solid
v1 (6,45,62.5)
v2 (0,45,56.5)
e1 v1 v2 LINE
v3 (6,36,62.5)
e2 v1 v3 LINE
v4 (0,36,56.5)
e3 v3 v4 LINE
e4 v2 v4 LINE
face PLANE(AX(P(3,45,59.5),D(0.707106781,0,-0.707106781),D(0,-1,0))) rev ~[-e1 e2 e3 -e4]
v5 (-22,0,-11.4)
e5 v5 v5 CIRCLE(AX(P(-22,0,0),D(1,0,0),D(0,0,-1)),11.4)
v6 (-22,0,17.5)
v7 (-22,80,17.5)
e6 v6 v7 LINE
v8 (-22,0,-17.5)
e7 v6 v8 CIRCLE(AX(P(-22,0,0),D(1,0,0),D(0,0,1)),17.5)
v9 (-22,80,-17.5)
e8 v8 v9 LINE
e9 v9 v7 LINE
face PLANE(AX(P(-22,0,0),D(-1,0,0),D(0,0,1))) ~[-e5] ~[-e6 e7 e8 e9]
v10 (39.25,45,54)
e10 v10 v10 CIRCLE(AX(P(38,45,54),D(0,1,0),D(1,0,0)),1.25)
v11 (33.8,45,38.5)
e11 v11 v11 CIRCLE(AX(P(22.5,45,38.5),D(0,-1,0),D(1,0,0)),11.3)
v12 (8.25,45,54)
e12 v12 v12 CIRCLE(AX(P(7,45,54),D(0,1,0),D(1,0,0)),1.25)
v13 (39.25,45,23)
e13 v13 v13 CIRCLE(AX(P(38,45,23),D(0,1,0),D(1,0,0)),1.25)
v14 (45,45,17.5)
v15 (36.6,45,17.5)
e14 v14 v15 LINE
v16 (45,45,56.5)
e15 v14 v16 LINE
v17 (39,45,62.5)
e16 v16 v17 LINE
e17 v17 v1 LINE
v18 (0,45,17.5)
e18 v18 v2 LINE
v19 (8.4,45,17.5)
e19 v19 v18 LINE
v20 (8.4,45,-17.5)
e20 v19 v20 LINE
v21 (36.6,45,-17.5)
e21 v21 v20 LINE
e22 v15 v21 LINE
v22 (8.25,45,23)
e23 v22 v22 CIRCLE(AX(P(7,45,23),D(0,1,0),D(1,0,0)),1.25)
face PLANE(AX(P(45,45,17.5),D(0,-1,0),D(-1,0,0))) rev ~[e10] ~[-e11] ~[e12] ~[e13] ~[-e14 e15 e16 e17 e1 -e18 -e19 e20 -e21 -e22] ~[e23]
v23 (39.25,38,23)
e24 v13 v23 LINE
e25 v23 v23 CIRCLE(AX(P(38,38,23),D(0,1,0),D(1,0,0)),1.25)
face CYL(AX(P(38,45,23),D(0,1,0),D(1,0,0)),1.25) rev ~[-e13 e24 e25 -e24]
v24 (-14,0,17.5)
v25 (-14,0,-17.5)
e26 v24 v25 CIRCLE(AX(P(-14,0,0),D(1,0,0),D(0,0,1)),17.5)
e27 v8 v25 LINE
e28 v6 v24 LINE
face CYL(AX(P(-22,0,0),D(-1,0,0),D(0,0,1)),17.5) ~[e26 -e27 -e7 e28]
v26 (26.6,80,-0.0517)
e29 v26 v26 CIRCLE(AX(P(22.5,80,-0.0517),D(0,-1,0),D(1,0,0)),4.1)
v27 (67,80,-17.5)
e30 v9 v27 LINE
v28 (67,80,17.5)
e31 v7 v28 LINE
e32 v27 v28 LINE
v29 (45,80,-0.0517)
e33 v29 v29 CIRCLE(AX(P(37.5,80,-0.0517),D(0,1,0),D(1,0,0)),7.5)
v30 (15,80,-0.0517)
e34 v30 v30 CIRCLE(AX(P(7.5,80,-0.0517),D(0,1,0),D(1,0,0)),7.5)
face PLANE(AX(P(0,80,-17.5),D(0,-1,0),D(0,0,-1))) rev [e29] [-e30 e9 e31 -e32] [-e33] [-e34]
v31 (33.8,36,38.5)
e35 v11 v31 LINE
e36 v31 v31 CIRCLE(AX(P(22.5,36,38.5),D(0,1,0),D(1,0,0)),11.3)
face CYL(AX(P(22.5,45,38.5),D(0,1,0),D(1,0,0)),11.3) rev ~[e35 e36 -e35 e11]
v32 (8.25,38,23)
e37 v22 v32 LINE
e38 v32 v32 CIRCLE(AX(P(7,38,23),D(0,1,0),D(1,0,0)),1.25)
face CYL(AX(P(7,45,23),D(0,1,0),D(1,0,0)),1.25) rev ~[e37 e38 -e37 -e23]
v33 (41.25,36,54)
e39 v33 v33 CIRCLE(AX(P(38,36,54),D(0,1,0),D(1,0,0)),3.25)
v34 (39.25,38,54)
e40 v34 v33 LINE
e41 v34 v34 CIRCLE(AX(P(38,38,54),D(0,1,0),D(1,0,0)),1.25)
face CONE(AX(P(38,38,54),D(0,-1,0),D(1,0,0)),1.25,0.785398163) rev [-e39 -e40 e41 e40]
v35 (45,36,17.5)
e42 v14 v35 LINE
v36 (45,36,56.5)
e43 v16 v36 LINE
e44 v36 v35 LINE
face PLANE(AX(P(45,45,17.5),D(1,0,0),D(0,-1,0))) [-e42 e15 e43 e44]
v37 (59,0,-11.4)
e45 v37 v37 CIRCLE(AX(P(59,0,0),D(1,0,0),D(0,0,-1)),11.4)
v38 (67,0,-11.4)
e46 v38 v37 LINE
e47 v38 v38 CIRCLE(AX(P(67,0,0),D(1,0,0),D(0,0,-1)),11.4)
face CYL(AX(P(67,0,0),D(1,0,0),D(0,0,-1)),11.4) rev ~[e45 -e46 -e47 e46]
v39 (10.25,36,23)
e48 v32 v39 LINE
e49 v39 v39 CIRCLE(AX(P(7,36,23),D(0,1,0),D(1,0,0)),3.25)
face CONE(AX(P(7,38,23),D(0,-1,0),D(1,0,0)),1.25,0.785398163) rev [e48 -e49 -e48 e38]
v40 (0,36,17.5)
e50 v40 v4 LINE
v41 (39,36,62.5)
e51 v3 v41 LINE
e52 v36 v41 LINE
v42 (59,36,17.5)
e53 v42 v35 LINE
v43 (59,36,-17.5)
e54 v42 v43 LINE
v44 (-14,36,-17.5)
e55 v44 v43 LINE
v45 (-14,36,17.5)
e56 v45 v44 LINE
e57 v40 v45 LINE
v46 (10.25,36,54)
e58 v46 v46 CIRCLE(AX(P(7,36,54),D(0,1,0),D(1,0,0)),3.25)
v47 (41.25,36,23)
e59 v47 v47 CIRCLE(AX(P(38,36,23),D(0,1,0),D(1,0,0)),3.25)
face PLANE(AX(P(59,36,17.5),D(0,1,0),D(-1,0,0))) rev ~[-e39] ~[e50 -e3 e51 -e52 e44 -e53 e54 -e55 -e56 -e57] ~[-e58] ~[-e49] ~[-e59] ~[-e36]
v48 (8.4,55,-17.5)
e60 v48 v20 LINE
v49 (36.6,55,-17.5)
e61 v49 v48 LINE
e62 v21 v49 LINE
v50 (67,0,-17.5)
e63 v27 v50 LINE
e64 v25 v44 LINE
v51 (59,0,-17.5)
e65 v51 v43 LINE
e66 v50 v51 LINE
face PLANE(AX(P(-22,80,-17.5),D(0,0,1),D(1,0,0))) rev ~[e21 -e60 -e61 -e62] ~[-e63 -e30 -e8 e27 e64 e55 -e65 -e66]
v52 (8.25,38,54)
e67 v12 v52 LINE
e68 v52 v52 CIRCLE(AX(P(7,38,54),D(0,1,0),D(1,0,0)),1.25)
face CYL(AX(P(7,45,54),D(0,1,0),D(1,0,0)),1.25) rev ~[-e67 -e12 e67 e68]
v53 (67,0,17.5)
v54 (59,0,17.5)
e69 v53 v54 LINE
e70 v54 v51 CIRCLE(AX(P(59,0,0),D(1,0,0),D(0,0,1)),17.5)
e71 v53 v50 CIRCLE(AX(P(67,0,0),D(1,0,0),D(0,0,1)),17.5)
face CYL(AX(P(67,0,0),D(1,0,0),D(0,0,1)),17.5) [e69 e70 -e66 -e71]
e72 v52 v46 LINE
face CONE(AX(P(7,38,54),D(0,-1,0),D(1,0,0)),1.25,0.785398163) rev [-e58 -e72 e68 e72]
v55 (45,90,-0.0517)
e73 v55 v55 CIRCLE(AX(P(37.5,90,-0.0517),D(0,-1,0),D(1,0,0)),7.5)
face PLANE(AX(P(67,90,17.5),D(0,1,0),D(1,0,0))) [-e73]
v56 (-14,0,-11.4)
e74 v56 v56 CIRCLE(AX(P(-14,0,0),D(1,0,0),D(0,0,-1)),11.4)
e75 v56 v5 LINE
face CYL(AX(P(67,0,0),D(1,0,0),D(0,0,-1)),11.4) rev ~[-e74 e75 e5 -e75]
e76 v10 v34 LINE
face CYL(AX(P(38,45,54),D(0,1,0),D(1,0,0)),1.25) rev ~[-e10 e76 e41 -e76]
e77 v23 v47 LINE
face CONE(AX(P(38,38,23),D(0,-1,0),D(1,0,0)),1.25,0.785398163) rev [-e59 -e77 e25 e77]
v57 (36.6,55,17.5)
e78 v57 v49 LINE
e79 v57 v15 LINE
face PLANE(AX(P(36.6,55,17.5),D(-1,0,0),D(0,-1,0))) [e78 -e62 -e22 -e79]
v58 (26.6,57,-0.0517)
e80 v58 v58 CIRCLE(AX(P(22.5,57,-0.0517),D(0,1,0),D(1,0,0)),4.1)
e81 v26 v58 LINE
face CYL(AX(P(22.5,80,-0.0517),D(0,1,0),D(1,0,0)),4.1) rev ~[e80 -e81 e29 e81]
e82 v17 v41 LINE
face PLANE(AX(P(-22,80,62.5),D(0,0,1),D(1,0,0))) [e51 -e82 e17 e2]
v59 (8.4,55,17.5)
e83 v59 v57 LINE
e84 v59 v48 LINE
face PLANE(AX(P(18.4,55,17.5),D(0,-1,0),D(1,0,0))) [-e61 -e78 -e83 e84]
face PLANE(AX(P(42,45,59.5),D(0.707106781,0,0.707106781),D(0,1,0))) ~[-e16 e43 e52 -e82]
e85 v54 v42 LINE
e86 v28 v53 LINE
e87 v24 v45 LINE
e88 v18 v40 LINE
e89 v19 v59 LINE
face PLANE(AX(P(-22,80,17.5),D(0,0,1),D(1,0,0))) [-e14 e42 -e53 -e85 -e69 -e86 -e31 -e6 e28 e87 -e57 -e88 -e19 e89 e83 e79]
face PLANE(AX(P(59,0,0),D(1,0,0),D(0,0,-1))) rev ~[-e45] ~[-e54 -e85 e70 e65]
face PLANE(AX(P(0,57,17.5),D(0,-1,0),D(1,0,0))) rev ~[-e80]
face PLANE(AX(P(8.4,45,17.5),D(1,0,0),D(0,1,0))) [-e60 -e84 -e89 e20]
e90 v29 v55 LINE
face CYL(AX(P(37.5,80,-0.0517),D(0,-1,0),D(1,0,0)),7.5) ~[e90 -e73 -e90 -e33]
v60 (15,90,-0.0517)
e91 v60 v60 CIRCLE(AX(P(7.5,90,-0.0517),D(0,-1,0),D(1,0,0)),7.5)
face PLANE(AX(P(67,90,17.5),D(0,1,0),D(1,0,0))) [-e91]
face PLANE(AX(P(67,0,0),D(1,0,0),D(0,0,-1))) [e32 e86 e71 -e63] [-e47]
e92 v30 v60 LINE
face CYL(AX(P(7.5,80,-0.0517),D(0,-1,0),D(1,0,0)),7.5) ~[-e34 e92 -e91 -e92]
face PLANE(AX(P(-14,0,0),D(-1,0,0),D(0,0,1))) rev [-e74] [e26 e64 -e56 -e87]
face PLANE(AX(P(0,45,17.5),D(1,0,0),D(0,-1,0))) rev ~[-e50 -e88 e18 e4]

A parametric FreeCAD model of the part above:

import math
import FreeCAD as App
import Part
import Sketcher
from FreeCAD import Vector


def edges_at(feature, points):
    """Names of the edges that pass closest to the given points."""
    edges = feature.Shape.Edges
    near = lambda p: min(range(len(edges)), key=lambda i: edges[i].distToShape(Part.Vertex(*p))[0])
    return sorted({f"Edge{near(p) + 1}" for p in points})

doc = App.newDocument("Part")
params = doc.addObject("Spreadsheet::Sheet", "Params")
for row, (alias, value) in enumerate([
    ("sketch1_radius", "17.5 mm"),
    ("sketch1_width", "80 mm"),
    ("sketch1_radius2", "8.5 mm"),
    ("pad1_length", "45 mm"),
    ("sketch2_width", "23 mm"),
    ("sketch2_height", "35 mm"),
    ("pad2_length", "22 mm"),
    ("sketch3_radius", "17.5 mm"),
    ("sketch3_radius2", "8.5 mm"),
    ("sketch3_width", "57 mm"),
    ("pad3_length", "8 mm"),
    ("sketch4_diameter", "15 mm"),
    ("pad4_length", "10 mm"),
    ("sketch5_diameter", "8.2 mm"),
    ("pocket1_length", "35 mm"),
    ("sketch6_height", "10 mm"),
    ("sketch6_width", "28.2 mm"),
    ("pocket2_length", "84.5 mm"),
    ("sketch7_width", "45 mm"),
    ("sketch7_height", "53.5 mm"),
    ("pocket3_length", "85.25 mm"),
    ("sketch8_diameter", "22.8 mm"),
    ("pocket4_length", "144.5 mm"),
    ("sketch9_height", "9 mm"),
    ("sketch9_width", "45 mm"),
    ("pad5_length", "45 mm"),
    ("sketch10_diameter", "22.6 mm"),
    ("sketch10_diameter2", "2.5 mm"),
    ("pocket5_length", "45 mm"),
    ("chamfer_size", "2 mm"),
    ("chamfer2_size", "6 mm"),
    ("sketch11_width", "73 mm"),
    ("sketch11_height", "21 mm"),
    ("sketch11_height2", "10 mm"),
    ("sketch11_width2", "28.2 mm"),
    ("pad6_length", "35 mm"),
], start=1):
    params.set(f"A{row}", alias)
    params.set(f"B{row}", "=" + value)
    params.setAlias(f"B{row}", alias)

body = doc.addObject("PartDesign::Body", "Body")

sketch1 = doc.addObject("Sketcher::SketchObject", "Sketch")
body.addObject(sketch1)
sketch1.AttachmentSupport = (doc.YZ_Plane, [""])
sketch1.MapMode = "FlatFace"
sketch1.addGeometry(Part.ArcOfCircle(Part.Circle(Vector(0, 0, 0), Vector(0, 0, 1), 18), math.radians(90), math.radians(270)), False)
sketch1.addGeometry(Part.LineSegment(Vector(0, -18, 0), Vector(80, -18, 0)), False)
sketch1.addGeometry(Part.LineSegment(Vector(80, -18, 0), Vector(80, 18, 0)), False)
sketch1.addGeometry(Part.LineSegment(Vector(80, 18, 0), Vector(0, 18, 0)), False)
sketch1.addGeometry(Part.LineSegment(Vector(-6, -6, 0), Vector(-6, 6, 0)), False)
sketch1.addGeometry(Part.ArcOfCircle(Part.Circle(Vector(0, 0, 0), Vector(0, 0, 1), 9), math.radians(45), math.radians(135)), False)
sketch1.addGeometry(Part.LineSegment(Vector(6, 6, 0), Vector(6, -6, 0)), False)
sketch1.addGeometry(Part.ArcOfCircle(Part.Circle(Vector(0, 0, 0), Vector(0, 0, 1), 9), math.radians(-135), math.radians(-45)), False)
sketch1.addConstraint(Sketcher.Constraint("Tangent", 0, 2, 1, 1))
sketch1.addConstraint(Sketcher.Constraint("Coincident", 1, 2, 2, 1))
sketch1.addConstraint(Sketcher.Constraint("Coincident", 2, 2, 3, 1))
sketch1.addConstraint(Sketcher.Constraint("Tangent", 3, 2, 0, 1))
sketch1.addConstraint(Sketcher.Constraint("Coincident", 4, 2, 5, 2))
sketch1.addConstraint(Sketcher.Constraint("Coincident", 5, 1, 6, 1))
sketch1.addConstraint(Sketcher.Constraint("Coincident", 6, 2, 7, 2))
sketch1.addConstraint(Sketcher.Constraint("Coincident", 7, 1, 4, 1))
sketch1.addConstraint(Sketcher.Constraint("Horizontal", 1))
sketch1.addConstraint(Sketcher.Constraint("Vertical", 2))
sketch1.addConstraint(Sketcher.Constraint("Horizontal", 3))
sketch1.addConstraint(Sketcher.Constraint("Vertical", 4))
sketch1.addConstraint(Sketcher.Constraint("Vertical", 6))
sketch1.addConstraint(Sketcher.Constraint("Coincident", 0, 3, -1, 1))
sketch1.addConstraint(Sketcher.Constraint("Coincident", 5, 3, -1, 1))
sketch1.addConstraint(Sketcher.Constraint("Coincident", 7, 3, -1, 1))
sketch1.addConstraint(Sketcher.Constraint("Equal", 5, 7))
sketch1.addConstraint(Sketcher.Constraint("Horizontal", 4, 2, 5, 1))
sketch1.addConstraint(Sketcher.Constraint("Radius", 0, 17.5))
sketch1.addConstraint(Sketcher.Constraint("DistanceX", 1, 1, 1, 2, 80.0))
sketch1.addConstraint(Sketcher.Constraint("Radius", 5, 8.5))
sketch1.addConstraint(Sketcher.Constraint("DistanceX", 4, 2, -1, 1, 6.0))
sketch1.setExpression("Constraints[18]", "Params.sketch1_radius")
sketch1.setExpression("Constraints[19]", "Params.sketch1_width")
sketch1.setExpression("Constraints[20]", "Params.sketch1_radius2")
pad1 = doc.addObject("PartDesign::Pad", "Pad")
body.addObject(pad1)
pad1.Profile = sketch1
pad1.setExpression("Length", "Params.pad1_length")

sketch2 = doc.addObject("Sketcher::SketchObject", "Sketch001")
body.addObject(sketch2)
sketch2.AttachmentSupport = (doc.YZ_Plane, [""])
sketch2.MapMode = "FlatFace"
sketch2.AttachmentOffset = App.Placement(Vector(0, 0, 45), App.Rotation())
sketch2.addGeometry(Part.LineSegment(Vector(57, -18, 0), Vector(80, -18, 0)), False)
sketch2.addGeometry(Part.LineSegment(Vector(80, -18, 0), Vector(80, 18, 0)), False)
sketch2.addGeometry(Part.LineSegment(Vector(80, 18, 0), Vector(57, 18, 0)), False)
sketch2.addGeometry(Part.LineSegment(Vector(57, 18, 0), Vector(57, -18, 0)), False)
sketch2.addConstraint(Sketcher.Constraint("Coincident", 0, 2, 1, 1))
sketch2.addConstraint(Sketcher.Constraint("Coincident", 1, 2, 2, 1))
sketch2.addConstraint(Sketcher.Constraint("Coincident", 2, 2, 3, 1))
sketch2.addConstraint(Sketcher.Constraint("Coincident", 3, 2, 0, 1))
sketch2.addConstraint(Sketcher.Constraint("Horizontal", 0))
sketch2.addConstraint(Sketcher.Constraint("Vertical", 1))
sketch2.addConstraint(Sketcher.Constraint("Horizontal", 2))
sketch2.addConstraint(Sketcher.Constraint("Vertical", 3))
sketch2.addConstraint(Sketcher.Constraint("DistanceX", 0, 1, 0, 2, 23.0))
sketch2.addConstraint(Sketcher.Constraint("DistanceY", 1, 1, 1, 2, 35.0))
sketch2.addConstraint(Sketcher.Constraint("DistanceX", -1, 1, 0, 2, 80.0))
sketch2.addConstraint(Sketcher.Constraint("DistanceY", 0, 2, -1, 1, 17.5))
sketch2.setExpression("Constraints[8]", "Params.sketch2_width")
sketch2.setExpression("Constraints[9]", "Params.sketch2_height")
pad2 = doc.addObject("PartDesign::Pad", "Pad001")
body.addObject(pad2)
pad2.Profile = sketch2
pad2.setExpression("Length", "Params.pad2_length")
doc.recompute()

datumplane = doc.addObject("PartDesign::Plane", "DatumPlane")
body.addObject(datumplane)
datumplane.AttachmentSupport = (doc.YZ_Plane, [""])
datumplane.MapMode = "FlatFace"
datumplane.AttachmentOffset = App.Placement(Vector(0, 0, 22.5), App.Rotation())
mirrored = doc.addObject("PartDesign::Mirrored", "Mirrored")
body.addObject(mirrored)
mirrored.Originals = [pad2]
mirrored.MirrorPlane = (datumplane, [""])
body.Tip = mirrored

sketch3 = doc.addObject("Sketcher::SketchObject", "Sketch002")
body.addObject(sketch3)
sketch3.AttachmentSupport = (doc.YZ_Plane, [""])
sketch3.MapMode = "FlatFace"
sketch3.AttachmentOffset = App.Placement(Vector(0, 0, 67), App.Rotation())
sketch3.addGeometry(Part.LineSegment(Vector(0, -18, 0), Vector(57, -18, 0)), False)
sketch3.addGeometry(Part.LineSegment(Vector(57, -18, 0), Vector(57, 18, 0)), False)
sketch3.addGeometry(Part.LineSegment(Vector(57, 18, 0), Vector(0, 18, 0)), False)
sketch3.addGeometry(Part.ArcOfCircle(Part.Circle(Vector(0, 0, 0), Vector(0, 0, 1), 18), math.radians(90), math.radians(270)), False)
sketch3.addGeometry(Part.ArcOfCircle(Part.Circle(Vector(0, 0, 0), Vector(0, 0, 1), 9), math.radians(-135), math.radians(-45)), False)
sketch3.addGeometry(Part.LineSegment(Vector(-6, -6, 0), Vector(-6, 6, 0)), False)
sketch3.addGeometry(Part.ArcOfCircle(Part.Circle(Vector(0, 0, 0), Vector(0, 0, 1), 9), math.radians(45), math.radians(135)), False)
sketch3.addGeometry(Part.LineSegment(Vector(6, 6, 0), Vector(6, -6, 0)), False)
sketch3.addConstraint(Sketcher.Constraint("Coincident", 0, 2, 1, 1))
sketch3.addConstraint(Sketcher.Constraint("Coincident", 1, 2, 2, 1))
sketch3.addConstraint(Sketcher.Constraint("Tangent", 2, 2, 3, 1))
sketch3.addConstraint(Sketcher.Constraint("Tangent", 3, 2, 0, 1))
sketch3.addConstraint(Sketcher.Constraint("Coincident", 4, 1, 5, 1))
sketch3.addConstraint(Sketcher.Constraint("Coincident", 5, 2, 6, 2))
sketch3.addConstraint(Sketcher.Constraint("Coincident", 6, 1, 7, 1))
sketch3.addConstraint(Sketcher.Constraint("Coincident", 7, 2, 4, 2))
sketch3.addConstraint(Sketcher.Constraint("Horizontal", 0))
sketch3.addConstraint(Sketcher.Constraint("Vertical", 1))
sketch3.addConstraint(Sketcher.Constraint("Horizontal", 2))
sketch3.addConstraint(Sketcher.Constraint("Vertical", 5))
sketch3.addConstraint(Sketcher.Constraint("Vertical", 7))
sketch3.addConstraint(Sketcher.Constraint("Coincident", 3, 3, -1, 1))
sketch3.addConstraint(Sketcher.Constraint("Coincident", 4, 3, -1, 1))
sketch3.addConstraint(Sketcher.Constraint("Coincident", 6, 3, -1, 1))
sketch3.addConstraint(Sketcher.Constraint("Equal", 4, 6))
sketch3.addConstraint(Sketcher.Constraint("Horizontal", 5, 2, 6, 1))
sketch3.addConstraint(Sketcher.Constraint("Radius", 3, 17.5))
sketch3.addConstraint(Sketcher.Constraint("Radius", 4, 8.5))
sketch3.addConstraint(Sketcher.Constraint("DistanceX", 0, 1, 0, 2, 57.0))
sketch3.addConstraint(Sketcher.Constraint("DistanceX", 4, 1, -1, 1, 6.0))
sketch3.setExpression("Constraints[18]", "Params.sketch3_radius")
sketch3.setExpression("Constraints[19]", "Params.sketch3_radius2")
sketch3.setExpression("Constraints[20]", "Params.sketch3_width")
pad3 = doc.addObject("PartDesign::Pad", "Pad002")
body.addObject(pad3)
pad3.Profile = sketch3
pad3.setExpression("Length", "Params.pad3_length")
pad3.Reversed = True
doc.recompute()

datumplane2 = doc.addObject("PartDesign::Plane", "DatumPlane001")
body.addObject(datumplane2)
datumplane2.AttachmentSupport = (doc.YZ_Plane, [""])
datumplane2.MapMode = "FlatFace"
datumplane2.AttachmentOffset = App.Placement(Vector(0, 0, 22.5), App.Rotation())
mirrored2 = doc.addObject("PartDesign::Mirrored", "Mirrored001")
body.addObject(mirrored2)
mirrored2.Originals = [pad3]
mirrored2.MirrorPlane = (datumplane2, [""])
body.Tip = mirrored2

sketch4 = doc.addObject("Sketcher::SketchObject", "Sketch003")
body.addObject(sketch4)
sketch4.AttachmentSupport = (doc.XZ_Plane, [""])
sketch4.MapMode = "FlatFace"
sketch4.AttachmentOffset = App.Placement(Vector(0, 0, -80), App.Rotation())
sketch4.addGeometry(Part.Circle(Vector(8, 0, 0), Vector(0, 0, 1), 8), False)
sketch4.addGeometry(Part.Circle(Vector(38, 0, 0), Vector(0, 0, 1), 8), False)
sketch4.addConstraint(Sketcher.Constraint("Equal", 0, 1))
sketch4.addConstraint(Sketcher.Constraint("Horizontal", 0, 3, 1, 3))
sketch4.addConstraint(Sketcher.Constraint("Diameter", 0, 15.0))
sketch4.addConstraint(Sketcher.Constraint("DistanceX", 0, 3, 1, 3, 30.0))
sketch4.addConstraint(Sketcher.Constraint("DistanceX", -1, 1, 0, 3, 7.5))
sketch4.addConstraint(Sketcher.Constraint("DistanceY", 0, 3, -1, 1, 0.0517))
sketch4.setExpression("Constraints[2]", "Params.sketch4_diameter")
pad4 = doc.addObject("PartDesign::Pad", "Pad003")
body.addObject(pad4)
pad4.Profile = sketch4
pad4.setExpression("Length", "Params.pad4_length")
pad4.Reversed = True

sketch5 = doc.addObject("Sketcher::SketchObject", "Sketch004")
body.addObject(sketch5)
sketch5.AttachmentSupport = (doc.XZ_Plane, [""])
sketch5.MapMode = "FlatFace"
sketch5.AttachmentOffset = App.Placement(Vector(0, 0, -80), App.Rotation())
sketch5.addGeometry(Part.Circle(Vector(22.5, -0.1, 0), Vector(0, 0, 1), 4.1), False)
sketch5.addConstraint(Sketcher.Constraint("Diameter", 0, 8.2))
sketch5.addConstraint(Sketcher.Constraint("DistanceX", -1, 1, 0, 3, 22.5))
sketch5.addConstraint(Sketcher.Constraint("DistanceY", 0, 3, -1, 1, 0.0517))
sketch5.setExpression("Constraints[0]", "Params.sketch5_diameter")
pocket1 = doc.addObject("PartDesign::Pocket", "Pocket")
body.addObject(pocket1)
pocket1.Profile = sketch5
pocket1.setExpression("Length", "Params.pocket1_length")
pocket1.Reversed = True

sketch6 = doc.addObject("Sketcher::SketchObject", "Sketch005")
body.addObject(sketch6)
sketch6.AttachmentSupport = (doc.XY_Plane, [""])
sketch6.MapMode = "FlatFace"
sketch6.AttachmentOffset = App.Placement(Vector(0, 0, 17.5), App.Rotation())
sketch6.addGeometry(Part.LineSegment(Vector(8, 55, 0), Vector(8, 45, 0)), False)
sketch6.addGeometry(Part.LineSegment(Vector(8, 45, 0), Vector(37, 45, 0)), False)
sketch6.addGeometry(Part.LineSegment(Vector(37, 45, 0), Vector(37, 55, 0)), False)
sketch6.addGeometry(Part.LineSegment(Vector(37, 55, 0), Vector(8, 55, 0)), False)
sketch6.addConstraint(Sketcher.Constraint("Coincident", 0, 2, 1, 1))
sketch6.addConstraint(Sketcher.Constraint("Coincident", 1, 2, 2, 1))
sketch6.addConstraint(Sketcher.Constraint("Coincident", 2, 2, 3, 1))
sketch6.addConstraint(Sketcher.Constraint("Coincident", 3, 2, 0, 1))
sketch6.addConstraint(Sketcher.Constraint("Vertical", 0))
sketch6.addConstraint(Sketcher.Constraint("Horizontal", 1))
sketch6.addConstraint(Sketcher.Constraint("Vertical", 2))
sketch6.addConstraint(Sketcher.Constraint("Horizontal", 3))
sketch6.addConstraint(Sketcher.Constraint("DistanceY", 0, 2, 0, 1, 10.0))
sketch6.addConstraint(Sketcher.Constraint("DistanceX", 1, 1, 1, 2, 28.2))
sketch6.addConstraint(Sketcher.Constraint("DistanceY", -1, 1, 0, 2, 45.0))
sketch6.addConstraint(Sketcher.Constraint("DistanceX", -1, 1, 0, 2, 8.4))
sketch6.setExpression("Constraints[8]", "Params.sketch6_height")
sketch6.setExpression("Constraints[9]", "Params.sketch6_width")
pocket2 = doc.addObject("PartDesign::Pocket", "Pocket001")
body.addObject(pocket2)
pocket2.Profile = sketch6
pocket2.setExpression("Length", "Params.pocket2_length")

sketch7 = doc.addObject("Sketcher::SketchObject", "Sketch006")
body.addObject(sketch7)
sketch7.AttachmentSupport = (doc.XY_Plane, [""])
sketch7.MapMode = "FlatFace"
sketch7.AttachmentOffset = App.Placement(Vector(0, 0, 17.5), App.Rotation())
sketch7.addGeometry(Part.LineSegment(Vector(0, 36, 0), Vector(0, -18, 0)), False)
sketch7.addGeometry(Part.LineSegment(Vector(0, -18, 0), Vector(45, -18, 0)), False)
sketch7.addGeometry(Part.LineSegment(Vector(45, -18, 0), Vector(45, 36, 0)), False)
sketch7.addGeometry(Part.LineSegment(Vector(45, 36, 0), Vector(0, 36, 0)), False)
sketch7.addConstraint(Sketcher.Constraint("Coincident", 0, 2, 1, 1))
sketch7.addConstraint(Sketcher.Constraint("Coincident", 1, 2, 2, 1))
sketch7.addConstraint(Sketcher.Constraint("Coincident", 2, 2, 3, 1))
sketch7.addConstraint(Sketcher.Constraint("Coincident", 3, 2, 0, 1))
sketch7.addConstraint(Sketcher.Constraint("Vertical", 0))
sketch7.addConstraint(Sketcher.Constraint("Horizontal", 1))
sketch7.addConstraint(Sketcher.Constraint("Vertical", 2))
sketch7.addConstraint(Sketcher.Constraint("Horizontal", 3))
sketch7.addConstraint(Sketcher.Constraint("PointOnObject", 0, 2, -2))
sketch7.addConstraint(Sketcher.Constraint("DistanceX", 1, 1, 1, 2, 45.0))
sketch7.addConstraint(Sketcher.Constraint("DistanceY", 0, 2, 0, 1, 53.5))
sketch7.addConstraint(Sketcher.Constraint("DistanceY", -1, 1, 2, 2, 36.0))
sketch7.setExpression("Constraints[9]", "Params.sketch7_width")
sketch7.setExpression("Constraints[10]", "Params.sketch7_height")
pocket3 = doc.addObject("PartDesign::Pocket", "Pocket002")
body.addObject(pocket3)
pocket3.Profile = sketch7
pocket3.setExpression("Length", "Params.pocket3_length")

sketch8 = doc.addObject("Sketcher::SketchObject", "Sketch007")
body.addObject(sketch8)
sketch8.AttachmentSupport = (doc.YZ_Plane, [""])
sketch8.MapMode = "FlatFace"
sketch8.AttachmentOffset = App.Placement(Vector(0, 0, 67), App.Rotation())
sketch8.addGeometry(Part.Circle(Vector(0, 0, 0), Vector(0, 0, 1), 11), False)
sketch8.addConstraint(Sketcher.Constraint("Coincident", 0, 3, -1, 1))
sketch8.addConstraint(Sketcher.Constraint("Diameter", 0, 22.8))
sketch8.setExpression("Constraints[1]", "Params.sketch8_diameter")
pocket4 = doc.addObject("PartDesign::Pocket", "Pocket003")
body.addObject(pocket4)
pocket4.Profile = sketch8
pocket4.setExpression("Length", "Params.pocket4_length")

sketch9 = doc.addObject("Sketcher::SketchObject", "Sketch008")
body.addObject(sketch9)
sketch9.AttachmentSupport = (doc.XY_Plane, [""])
sketch9.MapMode = "FlatFace"
sketch9.AttachmentOffset = App.Placement(Vector(0, 0, 17.5), App.Rotation())
sketch9.addGeometry(Part.LineSegment(Vector(45, 45, 0), Vector(0, 45, 0)), False)
sketch9.addGeometry(Part.LineSegment(Vector(0, 45, 0), Vector(0, 36, 0)), False)
sketch9.addGeometry(Part.LineSegment(Vector(0, 36, 0), Vector(45, 36, 0)), False)
sketch9.addGeometry(Part.LineSegment(Vector(45, 36, 0), Vector(45, 45, 0)), False)
sketch9.addConstraint(Sketcher.Constraint("Coincident", 0, 2, 1, 1))
sketch9.addConstraint(Sketcher.Constraint("Coincident", 1, 2, 2, 1))
sketch9.addConstraint(Sketcher.Constraint("Coincident", 2, 2, 3, 1))
sketch9.addConstraint(Sketcher.Constraint("Coincident", 3, 2, 0, 1))
sketch9.addConstraint(Sketcher.Constraint("Horizontal", 0))
sketch9.addConstraint(Sketcher.Constraint("Vertical", 1))
sketch9.addConstraint(Sketcher.Constraint("Horizontal", 2))
sketch9.addConstraint(Sketcher.Constraint("Vertical", 3))
sketch9.addConstraint(Sketcher.Constraint("PointOnObject", 0, 2, -2))
sketch9.addConstraint(Sketcher.Constraint("DistanceY", 1, 2, 1, 1, 9.0))
sketch9.addConstraint(Sketcher.Constraint("DistanceX", 0, 2, 0, 1, 45.0))
sketch9.addConstraint(Sketcher.Constraint("DistanceY", -1, 1, 0, 2, 45.0))
sketch9.setExpression("Constraints[9]", "Params.sketch9_height")
sketch9.setExpression("Constraints[10]", "Params.sketch9_width")
pad5 = doc.addObject("PartDesign::Pad", "Pad004")
body.addObject(pad5)
pad5.Profile = sketch9
pad5.setExpression("Length", "Params.pad5_length")

sketch10 = doc.addObject("Sketcher::SketchObject", "Sketch009")
body.addObject(sketch10)
sketch10.AttachmentSupport = (doc.XZ_Plane, [""])
sketch10.MapMode = "FlatFace"
sketch10.AttachmentOffset = App.Placement(Vector(0, 0, -45), App.Rotation())
sketch10.addGeometry(Part.Circle(Vector(22.5, 38.5, 0), Vector(0, 0, 1), 11.3), False)
sketch10.addGeometry(Part.Circle(Vector(38, 23, 0), Vector(0, 0, 1), 1.2), False)
sketch10.addGeometry(Part.Circle(Vector(7, 23, 0), Vector(0, 0, 1), 1.2), False)
sketch10.addGeometry(Part.Circle(Vector(7, 54, 0), Vector(0, 0, 1), 1.2), False)
sketch10.addGeometry(Part.Circle(Vector(38, 54, 0), Vector(0, 0, 1), 1.2), False)
sketch10.addConstraint(Sketcher.Constraint("Equal", 1, 2))
sketch10.addConstraint(Sketcher.Constraint("Equal", 2, 3))
sketch10.addConstraint(Sketcher.Constraint("Equal", 3, 4))
sketch10.addConstraint(Sketcher.Constraint("Horizontal", 1, 3, 2, 3))
sketch10.addConstraint(Sketcher.Constraint("Horizontal", 3, 3, 4, 3))
sketch10.addConstraint(Sketcher.Constraint("Vertical", 2, 3, 3, 3))
sketch10.addConstraint(Sketcher.Constraint("Vertical", 1, 3, 4, 3))
sketch10.addConstraint(Sketcher.Constraint("Diameter", 0, 22.6))
sketch10.addConstraint(Sketcher.Constraint("Diameter", 1, 2.5))
sketch10.addConstraint(Sketcher.Constraint("DistanceX", -1, 1, 0, 3, 22.5))
sketch10.addConstraint(Sketcher.Constraint("DistanceX", -1, 1, 1, 3, 38.0))
sketch10.addConstraint(Sketcher.Constraint("DistanceY", -1, 1, 1, 3, 23.0))
sketch10.addConstraint(Sketcher.Constraint("DistanceX", -1, 1, 2, 3, 7.0))
sketch10.addConstraint(Sketcher.Constraint("DistanceY", -1, 1, 3, 3, 54.0))
sketch10.addConstraint(Sketcher.Constraint("DistanceY", -1, 1, 0, 3, 38.5))
sketch10.setExpression("Constraints[7]", "Params.sketch10_diameter")
sketch10.setExpression("Constraints[8]", "Params.sketch10_diameter2")
pocket5 = doc.addObject("PartDesign::Pocket", "Pocket004")
body.addObject(pocket5)
pocket5.Profile = sketch10
pocket5.setExpression("Length", "Params.pocket5_length")
pocket5.Reversed = True
doc.recompute()

chamfer = doc.addObject("PartDesign::Chamfer", "Chamfer")
body.addObject(chamfer)
chamfer.Base = (pocket5, edges_at(pocket5, [
    (5.75, 36, 54),
    (5.75, 36, 23),
    (36.75, 36, 23),
    (36.75, 36, 54),
]))
chamfer.setExpression("Size", "Params.chamfer_size")
doc.recompute()

chamfer2 = doc.addObject("PartDesign::Chamfer", "Chamfer001")
body.addObject(chamfer2)
chamfer2.Base = (chamfer, edges_at(chamfer, [(0, 40.5, 62.5), (45, 40.5, 62.5)]))
chamfer2.setExpression("Size", "Params.chamfer2_size")

sketch11 = doc.addObject("Sketcher::SketchObject", "Sketch010")
body.addObject(sketch11)
sketch11.AttachmentSupport = (doc.XY_Plane, [""])
sketch11.MapMode = "FlatFace"
sketch11.AttachmentOffset = App.Placement(Vector(0, 0, 17.5), App.Rotation())
sketch11.addGeometry(Part.LineSegment(Vector(-14, 36, 0), Vector(59, 36, 0)), False)
sketch11.addGeometry(Part.LineSegment(Vector(59, 36, 0), Vector(59, 57, 0)), False)
sketch11.addGeometry(Part.LineSegment(Vector(59, 57, 0), Vector(-14, 57, 0)), False)
sketch11.addGeometry(Part.LineSegment(Vector(-14, 57, 0), Vector(-14, 36, 0)), False)
sketch11.addGeometry(Part.LineSegment(Vector(8, 45, 0), Vector(8, 55, 0)), False)
sketch11.addGeometry(Part.LineSegment(Vector(8, 55, 0), Vector(37, 55, 0)), False)
sketch11.addGeometry(Part.LineSegment(Vector(37, 55, 0), Vector(37, 45, 0)), False)
sketch11.addGeometry(Part.LineSegment(Vector(37, 45, 0), Vector(8, 45, 0)), False)
sketch11.addConstraint(Sketcher.Constraint("Coincident", 0, 2, 1, 1))
sketch11.addConstraint(Sketcher.Constraint("Coincident", 1, 2, 2, 1))
sketch11.addConstraint(Sketcher.Constraint("Coincident", 2, 2, 3, 1))
sketch11.addConstraint(Sketcher.Constraint("Coincident", 3, 2, 0, 1))
sketch11.addConstraint(Sketcher.Constraint("Coincident", 4, 2, 5, 1))
sketch11.addConstraint(Sketcher.Constraint("Coincident", 5, 2, 6, 1))
sketch11.addConstraint(Sketcher.Constraint("Coincident", 6, 2, 7, 1))
sketch11.addConstraint(Sketcher.Constraint("Coincident", 7, 2, 4, 1))
sketch11.addConstraint(Sketcher.Constraint("Horizontal", 0))
sketch11.addConstraint(Sketcher.Constraint("Vertical", 1))
sketch11.addConstraint(Sketcher.Constraint("Horizontal", 2))
sketch11.addConstraint(Sketcher.Constraint("Vertical", 3))
sketch11.addConstraint(Sketcher.Constraint("Vertical", 4))
sketch11.addConstraint(Sketcher.Constraint("Horizontal", 5))
sketch11.addConstraint(Sketcher.Constraint("Vertical", 6))
sketch11.addConstraint(Sketcher.Constraint("Horizontal", 7))
sketch11.addConstraint(Sketcher.Constraint("DistanceX", 0, 1, 0, 2, 73.0))
sketch11.addConstraint(Sketcher.Constraint("DistanceY", 1, 1, 1, 2, 21.0))
sketch11.addConstraint(Sketcher.Constraint("DistanceY", 4, 1, 4, 2, 10.0))
sketch11.addConstraint(Sketcher.Constraint("DistanceX", 5, 1, 5, 2, 28.2))
sketch11.addConstraint(Sketcher.Constraint("DistanceX", -1, 1, 0, 2, 59.0))
sketch11.addConstraint(Sketcher.Constraint("DistanceY", -1, 1, 0, 2, 36.0))
sketch11.addConstraint(Sketcher.Constraint("DistanceY", -1, 1, 4, 2, 55.0))
sketch11.addConstraint(Sketcher.Constraint("DistanceX", -1, 1, 4, 2, 8.4))
sketch11.setExpression("Constraints[16]", "Params.sketch11_width")
sketch11.setExpression("Constraints[17]", "Params.sketch11_height")
sketch11.setExpression("Constraints[18]", "Params.sketch11_height2")
sketch11.setExpression("Constraints[19]", "Params.sketch11_width2")
pad6 = doc.addObject("PartDesign::Pad", "Pad005")
body.addObject(pad6)
pad6.Profile = sketch11
pad6.setExpression("Length", "Params.pad6_length")
pad6.Reversed = True

doc.recompute()
